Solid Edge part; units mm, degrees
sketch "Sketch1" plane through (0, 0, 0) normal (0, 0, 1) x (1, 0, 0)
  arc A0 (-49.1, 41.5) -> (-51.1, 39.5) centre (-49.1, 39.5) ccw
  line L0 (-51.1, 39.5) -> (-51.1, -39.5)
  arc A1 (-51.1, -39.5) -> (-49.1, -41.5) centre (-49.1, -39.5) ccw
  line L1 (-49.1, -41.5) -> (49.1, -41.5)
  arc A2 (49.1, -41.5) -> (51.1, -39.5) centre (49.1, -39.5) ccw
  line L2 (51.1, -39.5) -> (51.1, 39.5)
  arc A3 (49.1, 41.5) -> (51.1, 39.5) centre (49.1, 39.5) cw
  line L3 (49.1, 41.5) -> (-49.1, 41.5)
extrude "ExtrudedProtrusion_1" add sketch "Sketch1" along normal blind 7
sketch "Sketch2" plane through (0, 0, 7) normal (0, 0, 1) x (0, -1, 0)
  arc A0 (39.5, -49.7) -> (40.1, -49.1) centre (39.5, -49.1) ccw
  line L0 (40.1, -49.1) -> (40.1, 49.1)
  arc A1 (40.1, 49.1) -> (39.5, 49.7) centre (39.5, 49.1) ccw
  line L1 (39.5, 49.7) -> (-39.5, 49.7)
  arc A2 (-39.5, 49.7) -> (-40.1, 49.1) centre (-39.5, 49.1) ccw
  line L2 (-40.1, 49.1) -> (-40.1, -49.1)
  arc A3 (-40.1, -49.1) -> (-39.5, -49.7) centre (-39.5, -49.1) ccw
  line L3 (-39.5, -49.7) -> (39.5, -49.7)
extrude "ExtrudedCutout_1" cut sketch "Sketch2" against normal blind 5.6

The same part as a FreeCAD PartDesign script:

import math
import FreeCAD as App
import Part
import Sketcher

V = App.Vector

doc = App.newDocument("Part")
body = doc.addObject("PartDesign::Body", "Body")

# Sketch on XY plane
sketch1 = body.newObject("Sketcher::SketchObject", "Sketch")
sketch1.AttachmentSupport = (doc.getObject("XY_Plane"), [""])
sketch1.MapMode = "FlatFace"
sketch1.addGeometry([
    Part.LineSegment(V(49.1, 41.5, 0), V(-49.1, 41.5, 0)),  # 0
    Part.ArcOfCircle(Part.Circle(V(-49.1, 39.5, 0), V(0, 0, 1), 2), math.radians(90), math.radians(180)),  # 1
    Part.LineSegment(V(-51.1, 39.5, 0), V(-51.1, -39.5, 0)),  # 2
    Part.ArcOfCircle(Part.Circle(V(-49.1, -39.5, 0), V(0, 0, 1), 2), math.radians(180), math.radians(270)),  # 3
    Part.LineSegment(V(-49.1, -41.5, 0), V(49.1, -41.5, 0)),  # 4
    Part.ArcOfCircle(Part.Circle(V(49.1, -39.5, 0), V(0, 0, 1), 2), math.radians(-90), math.radians(0)),  # 5
    Part.LineSegment(V(51.1, -39.5, 0), V(51.1, 39.5, 0)),  # 6
    Part.ArcOfCircle(Part.Circle(V(49.1, 39.5, 0), V(0, 0, 1), 2), math.radians(0), math.radians(90)),  # 7
], False)
sketch1.addConstraint([
    Sketcher.Constraint("Tangent", 0, 2, 1, 1),
    Sketcher.Constraint("Tangent", 1, 2, 2, 1),
    Sketcher.Constraint("Tangent", 2, 2, 3, 1),
    Sketcher.Constraint("Tangent", 3, 2, 4, 1),
    Sketcher.Constraint("Tangent", 4, 2, 5, 1),
    Sketcher.Constraint("Tangent", 5, 2, 6, 1),
    Sketcher.Constraint("Tangent", 6, 2, 7, 1),
    Sketcher.Constraint("Tangent", 7, 2, 0, 1),
    Sketcher.Constraint("Horizontal", 0),
    Sketcher.Constraint("Vertical", 2),
    Sketcher.Constraint("Horizontal", 4),
    Sketcher.Constraint("Vertical", 6),
    Sketcher.Constraint("Equal", 1, 3),
    Sketcher.Constraint("Equal", 3, 5),
    Sketcher.Constraint("Equal", 5, 7),
    Sketcher.Constraint("Symmetric", 1, 3, 5, 3, -1, 1),
    Sketcher.Constraint("Radius", 1, 2.0),
    Sketcher.Constraint("DistanceY", 2, 2, 2, 1, 79.0),
    Sketcher.Constraint("DistanceX", 0, 2, 0, 1, 98.2),
])
pad1 = body.newObject("PartDesign::Pad", "Pad")
pad1.Profile = sketch1
pad1.Length = 7

# Sketch on XY plane
sketch2 = body.newObject("Sketcher::SketchObject", "Sketch001")
sketch2.AttachmentSupport = (doc.getObject("XY_Plane"), [""])
sketch2.MapMode = "FlatFace"
sketch2.AttachmentOffset = App.Placement(V(0, 0, 7), App.Rotation())
sketch2.addGeometry([
    Part.LineSegment(V(-49.7, 39.5, 0), V(-49.7, -39.5, 0)),  # 0
    Part.ArcOfCircle(Part.Circle(V(-49.1, -39.5, 0), V(0, 0, 1), 0.6), math.radians(180), math.radians(270)),  # 1
    Part.LineSegment(V(-49.1, -40.1, 0), V(49.1, -40.1, 0)),  # 2
    Part.ArcOfCircle(Part.Circle(V(49.1, -39.5, 0), V(0, 0, 1), 0.6), math.radians(-90), math.radians(0)),  # 3
    Part.LineSegment(V(49.7, -39.5, 0), V(49.7, 39.5, 0)),  # 4
    Part.ArcOfCircle(Part.Circle(V(49.1, 39.5, 0), V(0, 0, 1), 0.6), math.radians(0), math.radians(90)),  # 5
    Part.LineSegment(V(49.1, 40.1, 0), V(-49.1, 40.1, 0)),  # 6
    Part.ArcOfCircle(Part.Circle(V(-49.1, 39.5, 0), V(0, 0, 1), 0.6), math.radians(90), math.radians(180)),  # 7
], False)
sketch2.addConstraint([
    Sketcher.Constraint("Tangent", 0, 2, 1, 1),
    Sketcher.Constraint("Tangent", 1, 2, 2, 1),
    Sketcher.Constraint("Tangent", 2, 2, 3, 1),
    Sketcher.Constraint("Tangent", 3, 2, 4, 1),
    Sketcher.Constraint("Tangent", 4, 2, 5, 1),
    Sketcher.Constraint("Tangent", 5, 2, 6, 1),
    Sketcher.Constraint("Tangent", 6, 2, 7, 1),
    Sketcher.Constraint("Tangent", 7, 2, 0, 1),
    Sketcher.Constraint("Vertical", 0),
    Sketcher.Constraint("Horizontal", 2),
    Sketcher.Constraint("Vertical", 4),
    Sketcher.Constraint("Horizontal", 6),
    Sketcher.Constraint("Equal", 1, 3),
    Sketcher.Constraint("Equal", 3, 5),
    Sketcher.Constraint("Equal", 5, 7),
    Sketcher.Constraint("Symmetric", 1, 3, 5, 3, -1, 1),
    Sketcher.Constraint("Radius", 1, 0.6),
    Sketcher.Constraint("DistanceY", 0, 2, 0, 1, 79.0),
    Sketcher.Constraint("DistanceX", 2, 1, 2, 2, 98.2),
])
pocket1 = body.newObject("PartDesign::Pocket", "Pocket")
pocket1.Profile = sketch2
pocket1.Length = 5.6

doc.recompute()
